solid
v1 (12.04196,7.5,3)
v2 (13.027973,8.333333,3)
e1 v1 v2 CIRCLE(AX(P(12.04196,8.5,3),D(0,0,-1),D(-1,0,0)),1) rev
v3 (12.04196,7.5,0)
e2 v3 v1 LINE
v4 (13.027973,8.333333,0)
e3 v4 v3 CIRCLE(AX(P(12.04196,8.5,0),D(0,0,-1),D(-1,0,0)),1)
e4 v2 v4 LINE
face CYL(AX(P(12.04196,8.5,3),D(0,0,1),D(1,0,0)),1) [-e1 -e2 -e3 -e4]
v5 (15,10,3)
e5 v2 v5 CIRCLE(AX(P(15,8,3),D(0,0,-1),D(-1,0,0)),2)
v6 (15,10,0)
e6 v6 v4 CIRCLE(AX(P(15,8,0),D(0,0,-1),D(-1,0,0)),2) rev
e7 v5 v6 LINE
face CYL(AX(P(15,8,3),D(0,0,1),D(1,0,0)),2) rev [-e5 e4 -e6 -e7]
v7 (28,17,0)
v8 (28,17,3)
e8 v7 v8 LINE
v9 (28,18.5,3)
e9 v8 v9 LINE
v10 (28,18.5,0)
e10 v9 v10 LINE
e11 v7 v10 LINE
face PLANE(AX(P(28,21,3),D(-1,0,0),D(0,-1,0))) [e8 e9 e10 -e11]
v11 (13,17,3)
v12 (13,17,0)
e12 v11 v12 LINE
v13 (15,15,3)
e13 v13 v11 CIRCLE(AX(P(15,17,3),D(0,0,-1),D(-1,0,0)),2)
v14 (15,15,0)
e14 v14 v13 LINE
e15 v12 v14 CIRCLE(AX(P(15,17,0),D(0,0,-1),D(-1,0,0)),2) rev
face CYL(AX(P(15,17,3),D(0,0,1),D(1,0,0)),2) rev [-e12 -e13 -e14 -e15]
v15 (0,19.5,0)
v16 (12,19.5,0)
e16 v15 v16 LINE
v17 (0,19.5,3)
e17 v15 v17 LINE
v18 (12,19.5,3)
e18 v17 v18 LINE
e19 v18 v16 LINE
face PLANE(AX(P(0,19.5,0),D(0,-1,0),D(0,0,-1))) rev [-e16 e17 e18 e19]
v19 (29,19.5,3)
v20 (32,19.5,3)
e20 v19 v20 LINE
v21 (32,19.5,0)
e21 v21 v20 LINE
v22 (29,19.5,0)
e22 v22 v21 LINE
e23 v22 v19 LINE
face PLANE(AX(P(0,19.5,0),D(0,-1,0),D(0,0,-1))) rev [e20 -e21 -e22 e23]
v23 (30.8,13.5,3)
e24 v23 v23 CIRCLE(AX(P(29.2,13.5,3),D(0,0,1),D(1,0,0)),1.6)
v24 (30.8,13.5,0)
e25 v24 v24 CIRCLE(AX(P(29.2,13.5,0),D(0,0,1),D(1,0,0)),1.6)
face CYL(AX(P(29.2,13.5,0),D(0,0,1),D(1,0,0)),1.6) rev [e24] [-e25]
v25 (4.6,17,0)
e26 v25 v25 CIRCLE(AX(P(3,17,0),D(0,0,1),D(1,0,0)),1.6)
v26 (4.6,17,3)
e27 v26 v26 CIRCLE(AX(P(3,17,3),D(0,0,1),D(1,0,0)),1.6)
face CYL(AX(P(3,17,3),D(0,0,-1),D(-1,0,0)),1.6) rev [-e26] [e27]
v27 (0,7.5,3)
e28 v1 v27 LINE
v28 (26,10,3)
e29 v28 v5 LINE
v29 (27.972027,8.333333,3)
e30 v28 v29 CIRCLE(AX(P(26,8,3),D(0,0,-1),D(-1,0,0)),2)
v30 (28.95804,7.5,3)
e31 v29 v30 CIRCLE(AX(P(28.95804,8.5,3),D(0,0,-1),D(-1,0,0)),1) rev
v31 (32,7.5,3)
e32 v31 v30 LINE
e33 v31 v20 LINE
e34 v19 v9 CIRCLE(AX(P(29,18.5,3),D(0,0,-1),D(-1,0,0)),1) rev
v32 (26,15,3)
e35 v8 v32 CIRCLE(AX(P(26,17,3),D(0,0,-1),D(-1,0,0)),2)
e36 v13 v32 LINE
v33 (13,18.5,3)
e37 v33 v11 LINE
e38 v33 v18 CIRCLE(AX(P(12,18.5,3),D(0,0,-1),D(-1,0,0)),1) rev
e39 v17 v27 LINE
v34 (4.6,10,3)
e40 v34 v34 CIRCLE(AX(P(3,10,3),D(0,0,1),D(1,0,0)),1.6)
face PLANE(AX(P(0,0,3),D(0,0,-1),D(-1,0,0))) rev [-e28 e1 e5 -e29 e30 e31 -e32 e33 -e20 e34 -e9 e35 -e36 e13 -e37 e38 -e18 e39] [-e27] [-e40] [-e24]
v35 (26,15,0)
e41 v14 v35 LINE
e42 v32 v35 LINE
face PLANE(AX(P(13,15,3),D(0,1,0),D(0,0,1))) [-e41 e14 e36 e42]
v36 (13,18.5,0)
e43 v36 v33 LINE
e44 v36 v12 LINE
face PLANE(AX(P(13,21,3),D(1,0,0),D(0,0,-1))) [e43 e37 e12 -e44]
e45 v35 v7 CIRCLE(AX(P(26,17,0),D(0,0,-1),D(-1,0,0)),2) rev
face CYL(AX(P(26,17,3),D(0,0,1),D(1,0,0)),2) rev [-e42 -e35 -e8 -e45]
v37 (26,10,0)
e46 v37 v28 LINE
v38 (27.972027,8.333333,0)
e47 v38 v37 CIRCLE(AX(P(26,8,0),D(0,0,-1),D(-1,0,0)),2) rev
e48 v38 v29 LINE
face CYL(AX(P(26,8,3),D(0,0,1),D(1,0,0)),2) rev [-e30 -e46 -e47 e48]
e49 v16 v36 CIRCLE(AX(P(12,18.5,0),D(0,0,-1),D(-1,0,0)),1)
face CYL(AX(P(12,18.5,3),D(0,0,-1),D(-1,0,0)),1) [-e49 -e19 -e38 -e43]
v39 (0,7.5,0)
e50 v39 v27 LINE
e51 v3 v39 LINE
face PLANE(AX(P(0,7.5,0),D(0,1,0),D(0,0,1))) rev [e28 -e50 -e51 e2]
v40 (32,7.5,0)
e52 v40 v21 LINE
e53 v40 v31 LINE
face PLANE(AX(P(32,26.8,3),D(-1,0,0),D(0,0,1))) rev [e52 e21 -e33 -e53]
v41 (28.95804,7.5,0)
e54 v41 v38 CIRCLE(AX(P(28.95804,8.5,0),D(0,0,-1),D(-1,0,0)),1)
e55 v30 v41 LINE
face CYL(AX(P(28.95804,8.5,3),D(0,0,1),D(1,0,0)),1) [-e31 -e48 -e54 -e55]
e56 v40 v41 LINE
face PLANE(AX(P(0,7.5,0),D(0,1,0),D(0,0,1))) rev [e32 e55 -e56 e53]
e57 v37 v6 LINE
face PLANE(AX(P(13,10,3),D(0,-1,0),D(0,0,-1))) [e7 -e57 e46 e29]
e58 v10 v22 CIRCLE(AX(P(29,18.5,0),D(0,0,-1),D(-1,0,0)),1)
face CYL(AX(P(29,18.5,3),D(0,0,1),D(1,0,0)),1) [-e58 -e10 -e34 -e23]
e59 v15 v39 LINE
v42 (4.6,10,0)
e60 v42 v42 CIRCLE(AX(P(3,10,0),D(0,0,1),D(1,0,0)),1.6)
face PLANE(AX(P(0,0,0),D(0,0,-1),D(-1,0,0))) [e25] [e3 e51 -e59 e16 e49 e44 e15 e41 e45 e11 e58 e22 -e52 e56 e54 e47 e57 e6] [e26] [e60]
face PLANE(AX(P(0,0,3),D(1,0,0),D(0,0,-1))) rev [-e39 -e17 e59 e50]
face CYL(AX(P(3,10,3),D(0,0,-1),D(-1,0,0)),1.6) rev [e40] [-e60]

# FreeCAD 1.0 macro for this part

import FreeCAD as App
import Part
import Sketcher
from FreeCAD import Vector
Q = App.Units.Quantity


def edges_at(feature, points):
    """Names of the edges that pass closest to the given points."""
    edges = feature.Shape.Edges
    near = lambda p: min(range(len(edges)), key=lambda i: edges[i].distToShape(Part.Vertex(*p))[0])
    return sorted({f"Edge{near(p) + 1}" for p in points})


def add_polygon(sketch, points):
    """Adds a closed chain of lines whose ends are joined by coincident constraints."""
    first, n = sketch.GeometryCount, len(points)
    for a, b in zip(points, points[1:] + points[:1]):
        sketch.addGeometry(Part.LineSegment(App.Vector(*a, 0), App.Vector(*b, 0)), False)
    for i in range(n):
        sketch.addConstraint(Sketcher.Constraint("Coincident", first + i, 2, first + (i + 1) % n, 1))

doc = App.newDocument("Part")
params = doc.addObject("Spreadsheet::Sheet", "Params")
for row, (alias, value) in enumerate([
    ("sketch1_diameter", "3.2 mm"),
    ("sketch1_width", "32 mm"),
    ("sketch1_width2", "10 mm"),
    ("sketch1_width3", "15 mm"),
    ("sketch1_height", "3 mm"),
    ("pad1_length", "3 mm"),
    ("fillet_radius", "2 mm"),
    ("fillet2_radius", "3 mm"),
    ("sketch2_diameter", "3.2 mm"),
    ("sketch2_width", "32 mm"),
    ("fillet3_radius", "1 mm"),
], start=1):
    params.set(f"A{row}", alias)
    params.set(f"B{row}", "=" + value)
    params.setAlias(f"B{row}", alias)

body = doc.addObject("PartDesign::Body", "Body")

# Sketch on XY plane
sketch1 = body.newObject("Sketcher::SketchObject", "Sketch")
sketch1.AttachmentSupport = (doc.getObject("XY_Plane"), [""])
sketch1.MapMode = "FlatFace"
add_polygon(sketch1, [(0, 26.8), (0, 0), (32, 0), (32, 26.8), (22, 26.8), (22, 29.8), (12, 29.8), (12, 26.8)])  # lines 0-7
add_polygon(sketch1, [(13, 4), (13, 10), (28, 10), (28, 4)])  # lines 8-11
sketch1.addGeometry(Part.Circle(Vector(3, 10, 0), Vector(0, 0, 1), 1.6), False)  # 12
add_polygon(sketch1, [(13, 15), (13, 21), (28, 21), (28, 15)])  # lines 13-16
sketch1.addGeometry(Part.Circle(Vector(3, 17, 0), Vector(0, 0, 1), 1.6), False)  # 17
sketch1.addConstraint([
    Sketcher.Constraint("Vertical", 0),
    Sketcher.Constraint("Horizontal", 1),
    Sketcher.Constraint("Vertical", 2),
    Sketcher.Constraint("Horizontal", 3),
    Sketcher.Constraint("Vertical", 4),
    Sketcher.Constraint("Horizontal", 5),
    Sketcher.Constraint("Vertical", 6),
    Sketcher.Constraint("Horizontal", 7),
    Sketcher.Constraint("Vertical", 8),
    Sketcher.Constraint("Horizontal", 9),
    Sketcher.Constraint("Vertical", 10),
    Sketcher.Constraint("Horizontal", 11),
    Sketcher.Constraint("Vertical", 13),
    Sketcher.Constraint("Horizontal", 14),
    Sketcher.Constraint("Vertical", 15),
    Sketcher.Constraint("Horizontal", 16),
    Sketcher.Constraint("Coincident", 0, 2, -1, 1),
    Sketcher.Constraint("Equal", 12, 17),
    Sketcher.Constraint("Horizontal", 3, 2, 6, 2),
    Sketcher.Constraint("Horizontal", 12, 3, 8, 2),
    Sketcher.Constraint("Vertical", 12, 3, 17, 3),
    Sketcher.Constraint("Vertical", 11, 2, 13, 2),
    Sketcher.Constraint("Vertical", 10, 2, 14, 2),
    Sketcher.Constraint("Equal", 3, 5),
    Sketcher.Constraint("Equal", 10, 13),
    Sketcher.Constraint("Diameter", 12, Q("3.2 mm")),
    Sketcher.Constraint("DistanceX", 1, 1, 1, 2, Q("32 mm")),
    Sketcher.Constraint("DistanceX", 3, 2, 3, 1, Q("10 mm")),
    Sketcher.Constraint("DistanceX", 9, 1, 9, 2, Q("15 mm")),
    Sketcher.Constraint("DistanceY", 4, 1, 4, 2, Q("3 mm")),
    Sketcher.Constraint("DistanceY", 8, 1, 8, 2, Q("6 mm")),
    Sketcher.Constraint("DistanceY", 0, 2, 0, 1, Q("26.8 mm")),
    Sketcher.Constraint("DistanceX", -1, 1, 12, 3, Q("3 mm")),
    Sketcher.Constraint("DistanceY", -1, 1, 12, 3, Q("10 mm")),
    Sketcher.Constraint("DistanceY", -1, 1, 17, 3, Q("17 mm")),
    Sketcher.Constraint("DistanceX", -1, 1, 8, 2, Q("13 mm")),
    Sketcher.Constraint("DistanceY", -1, 1, 13, 2, Q("21 mm")),
])
sketch1.setExpression("Constraints[41]", "Params.sketch1_diameter")
sketch1.setExpression("Constraints[42]", "Params.sketch1_width")
sketch1.setExpression("Constraints[43]", "Params.sketch1_width2")
sketch1.setExpression("Constraints[44]", "Params.sketch1_width3")
sketch1.setExpression("Constraints[45]", "Params.sketch1_height")
pad1 = body.newObject("PartDesign::Pad", "Pad")
pad1.Profile = sketch1
pad1.setExpression("Length", "Params.pad1_length")
doc.recompute()

fillet = body.newObject("PartDesign::Fillet", "Fillet")
fillet.Base = (pad1, edges_at(pad1, [
    (13, 10, 1.5),
    (13, 4, 1.5),
    (28, 4, 1.5),
    (28, 10, 1.5),
    (13, 21, 1.5),
    (13, 15, 1.5),
    (28, 15, 1.5),
    (28, 21, 1.5),
]))
fillet.setExpression("Radius", "Params.fillet_radius")
doc.recompute()

fillet2 = body.newObject("PartDesign::Fillet", "Fillet001")
fillet2.Base = (fillet, edges_at(fillet, [(0, 0, 1.5), (32, 0, 1.5)]))
fillet2.setExpression("Radius", "Params.fillet2_radius")

# Sketch on XY plane
sketch2 = body.newObject("Sketcher::SketchObject", "Sketch001")
sketch2.AttachmentSupport = (doc.getObject("XY_Plane"), [""])
sketch2.MapMode = "FlatFace"
sketch2.AttachmentOffset = App.Placement(Vector(0, 0, 3), App.Rotation())
sketch2.addGeometry(Part.Circle(Vector(29.2, 13.5, 0), Vector(0, 0, 1), 1.6), False)  # 0
add_polygon(sketch2, [(0, 31.612345), (0, 19.5), (32, 19.5), (32, 31.612345)])  # lines 1-4
add_polygon(sketch2, [(0, 7.5), (0, -4.612345), (32, -4.612345), (32, 7.5)])  # lines 5-8
sketch2.addConstraint([
    Sketcher.Constraint("Vertical", 1),
    Sketcher.Constraint("Horizontal", 2),
    Sketcher.Constraint("Vertical", 3),
    Sketcher.Constraint("Horizontal", 4),
    Sketcher.Constraint("Vertical", 5),
    Sketcher.Constraint("Horizontal", 6),
    Sketcher.Constraint("Vertical", 7),
    Sketcher.Constraint("Horizontal", 8),
    Sketcher.Constraint("PointOnObject", 1, 2, -2),
    Sketcher.Constraint("PointOnObject", 5, 2, -2),
    Sketcher.Constraint("Vertical", 3, 2, 6, 2),
    Sketcher.Constraint("Equal", 3, 5),
    Sketcher.Constraint("Diameter", 0, Q("3.2 mm")),
    Sketcher.Constraint("DistanceX", 2, 1, 2, 2, Q("32 mm")),
    Sketcher.Constraint("DistanceY", 0, 3, 1, 2, Q("6 mm")),
    Sketcher.Constraint("DistanceY", 7, 2, 0, 3, Q("6 mm")),
    Sketcher.Constraint("DistanceX", -1, 1, 0, 3, Q("29.2 mm")),
    Sketcher.Constraint("DistanceY", -1, 1, 0, 3, Q("13.5 mm")),
    Sketcher.Constraint("DistanceY", 1, 2, 1, 1, Q("12.112345 mm")),
])
sketch2.setExpression("Constraints[20]", "Params.sketch2_diameter")
sketch2.setExpression("Constraints[21]", "Params.sketch2_width")
pocket1 = body.newObject("PartDesign::Pocket", "Pocket")
pocket1.Profile = sketch2
pocket1.Type = "ThroughAll"
doc.recompute()

fillet3 = body.newObject("PartDesign::Fillet", "Fillet002")
fillet3.Base = (pocket1, edges_at(pocket1, [
    (28, 7.5, 1.5),
    (13, 7.5, 1.5),
    (13.064, 19.5, 1.5),
    (27.936, 19.5, 1.5),
]))
fillet3.setExpression("Radius", "Params.fillet3_radius")

doc.recompute()
